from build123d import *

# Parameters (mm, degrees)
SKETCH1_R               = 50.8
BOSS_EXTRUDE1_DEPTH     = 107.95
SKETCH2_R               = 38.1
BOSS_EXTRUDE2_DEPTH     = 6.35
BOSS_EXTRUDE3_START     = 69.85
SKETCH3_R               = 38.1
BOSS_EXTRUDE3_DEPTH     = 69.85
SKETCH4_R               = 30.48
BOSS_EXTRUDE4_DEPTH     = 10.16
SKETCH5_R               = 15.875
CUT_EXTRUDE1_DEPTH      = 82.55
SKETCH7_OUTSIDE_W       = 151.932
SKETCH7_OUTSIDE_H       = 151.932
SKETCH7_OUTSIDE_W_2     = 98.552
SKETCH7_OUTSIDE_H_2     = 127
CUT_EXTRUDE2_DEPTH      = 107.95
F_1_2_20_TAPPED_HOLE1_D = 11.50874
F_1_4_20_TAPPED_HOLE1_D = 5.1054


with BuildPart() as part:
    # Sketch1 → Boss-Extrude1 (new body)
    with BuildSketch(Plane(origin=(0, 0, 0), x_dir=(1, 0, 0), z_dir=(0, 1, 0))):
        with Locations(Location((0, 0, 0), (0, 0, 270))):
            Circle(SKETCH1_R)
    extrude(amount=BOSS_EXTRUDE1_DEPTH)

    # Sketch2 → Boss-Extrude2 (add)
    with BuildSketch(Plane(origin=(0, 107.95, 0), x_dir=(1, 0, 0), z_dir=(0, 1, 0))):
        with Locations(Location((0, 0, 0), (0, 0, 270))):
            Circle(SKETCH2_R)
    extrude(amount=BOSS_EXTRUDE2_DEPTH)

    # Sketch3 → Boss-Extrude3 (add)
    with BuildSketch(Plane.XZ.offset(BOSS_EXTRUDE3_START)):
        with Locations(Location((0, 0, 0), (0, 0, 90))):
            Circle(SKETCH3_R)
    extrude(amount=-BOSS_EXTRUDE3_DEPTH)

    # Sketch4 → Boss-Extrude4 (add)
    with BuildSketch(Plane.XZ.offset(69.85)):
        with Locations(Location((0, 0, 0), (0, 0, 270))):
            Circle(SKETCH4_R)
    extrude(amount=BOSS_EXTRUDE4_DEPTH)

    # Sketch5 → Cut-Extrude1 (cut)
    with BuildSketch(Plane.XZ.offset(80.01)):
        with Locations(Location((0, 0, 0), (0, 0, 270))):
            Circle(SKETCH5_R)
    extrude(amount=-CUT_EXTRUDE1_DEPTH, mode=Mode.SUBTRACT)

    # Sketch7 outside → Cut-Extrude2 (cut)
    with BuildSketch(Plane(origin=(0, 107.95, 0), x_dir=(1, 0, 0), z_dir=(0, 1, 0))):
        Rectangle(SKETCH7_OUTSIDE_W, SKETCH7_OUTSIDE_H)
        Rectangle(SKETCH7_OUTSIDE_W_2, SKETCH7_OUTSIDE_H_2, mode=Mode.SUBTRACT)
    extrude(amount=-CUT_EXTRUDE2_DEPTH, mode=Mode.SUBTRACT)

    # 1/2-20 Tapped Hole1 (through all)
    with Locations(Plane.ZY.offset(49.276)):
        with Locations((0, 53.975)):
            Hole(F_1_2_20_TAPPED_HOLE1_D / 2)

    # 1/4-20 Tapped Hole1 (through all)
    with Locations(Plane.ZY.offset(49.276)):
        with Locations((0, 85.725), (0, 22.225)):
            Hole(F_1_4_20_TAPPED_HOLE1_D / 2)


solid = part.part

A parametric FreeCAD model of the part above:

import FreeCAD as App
import Part
import Sketcher
from FreeCAD import Vector
Q = App.Units.Quantity


def add_polygon(sketch, points):
    """Adds a closed chain of lines whose ends are joined by coincident constraints."""
    first, n = sketch.GeometryCount, len(points)
    for a, b in zip(points, points[1:] + points[:1]):
        sketch.addGeometry(Part.LineSegment(App.Vector(*a, 0), App.Vector(*b, 0)), False)
    for i in range(n):
        sketch.addConstraint(Sketcher.Constraint("Coincident", first + i, 2, first + (i + 1) % n, 1))

doc = App.newDocument("Part")
body = doc.addObject("PartDesign::Body", "Body")

# Sketch on XZ plane
sketch1 = body.newObject("Sketcher::SketchObject", "Sketch")
sketch1.AttachmentSupport = (doc.getObject("XZ_Plane"), [""])
sketch1.MapMode = "FlatFace"
sketch1.addGeometry(Part.Circle(Vector(0, 0, 0), Vector(0, 0, 1), 51), False)
sketch1.addConstraint([
    Sketcher.Constraint("Coincident", 0, 3, -1, 1),
    Sketcher.Constraint("Diameter", 0, Q("4 in")),
])
pad1 = body.newObject("PartDesign::Pad", "Pad")
pad1.Profile = sketch1
pad1.Length = Q("4.25 in")
pad1.Reversed = True

# Sketch on XZ plane
sketch2 = body.newObject("Sketcher::SketchObject", "Sketch001")
sketch2.AttachmentSupport = (doc.getObject("XZ_Plane"), [""])
sketch2.MapMode = "FlatFace"
sketch2.AttachmentOffset = App.Placement(Vector(0, 0, -4.25 * 25.4), App.Rotation())
sketch2.addGeometry(Part.Circle(Vector(0, 0, 0), Vector(0, 0, 1), 38), False)
sketch2.addConstraint([
    Sketcher.Constraint("Coincident", 0, 3, -1, 1),
    Sketcher.Constraint("Diameter", 0, Q("3 in")),
])
pad2 = body.newObject("PartDesign::Pad", "Pad001")
pad2.Profile = sketch2
pad2.Length = Q("0.25 in")
pad2.Reversed = True

# Sketch on XZ plane
sketch3 = body.newObject("Sketcher::SketchObject", "Sketch002")
sketch3.AttachmentSupport = (doc.getObject("XZ_Plane"), [""])
sketch3.MapMode = "FlatFace"
sketch3.AttachmentOffset = App.Placement(Vector(0, 0, 2.75 * 25.4), App.Rotation())
sketch3.addGeometry(Part.Circle(Vector(0, 0, 0), Vector(0, 0, 1), 38), False)
sketch3.addConstraint([
    Sketcher.Constraint("Coincident", 0, 3, -1, 1),
    Sketcher.Constraint("Diameter", 0, Q("3 in")),
])
pad3 = body.newObject("PartDesign::Pad", "Pad002")
pad3.Profile = sketch3
pad3.Length = Q("2.75 in")
pad3.Reversed = True

# Sketch on XZ plane
sketch4 = body.newObject("Sketcher::SketchObject", "Sketch003")
sketch4.AttachmentSupport = (doc.getObject("XZ_Plane"), [""])
sketch4.MapMode = "FlatFace"
sketch4.AttachmentOffset = App.Placement(Vector(0, 0, 2.75 * 25.4), App.Rotation())
sketch4.addGeometry(Part.Circle(Vector(0, 0, 0), Vector(0, 0, 1), 30), False)
sketch4.addConstraint([
    Sketcher.Constraint("Coincident", 0, 3, -1, 1),
    Sketcher.Constraint("Diameter", 0, Q("2.4 in")),
])
pad4 = body.newObject("PartDesign::Pad", "Pad003")
pad4.Profile = sketch4
pad4.Length = Q("0.4 in")

# Sketch on XZ plane
sketch5 = body.newObject("Sketcher::SketchObject", "Sketch004")
sketch5.AttachmentSupport = (doc.getObject("XZ_Plane"), [""])
sketch5.MapMode = "FlatFace"
sketch5.AttachmentOffset = App.Placement(Vector(0, 0, 3.15 * 25.4), App.Rotation())
sketch5.addGeometry(Part.Circle(Vector(0, 0, 0), Vector(0, 0, 1), 16), False)
sketch5.addConstraint([
    Sketcher.Constraint("Coincident", 0, 3, -1, 1),
    Sketcher.Constraint("Diameter", 0, Q("1.25 in")),
])
pocket1 = body.newObject("PartDesign::Pocket", "Pocket")
pocket1.Profile = sketch5
pocket1.Length = Q("3.25 in")

# Sketch on XZ plane
sketch6 = body.newObject("Sketcher::SketchObject", "Sketch005")
sketch6.AttachmentSupport = (doc.getObject("XZ_Plane"), [""])
sketch6.MapMode = "FlatFace"
sketch6.AttachmentOffset = App.Placement(Vector(0, 0, -4.25 * 25.4), App.Rotation())
add_polygon(sketch6, [(-76, -76), (-76, 76), (76, 76), (76, -76)])  # lines 0-3
add_polygon(sketch6, [(49, 64), (-49, 64), (-49, -64), (49, -64)])  # lines 4-7
sketch6.addConstraint([
    Sketcher.Constraint("Vertical", 0),
    Sketcher.Constraint("Horizontal", 1),
    Sketcher.Constraint("Vertical", 2),
    Sketcher.Constraint("Horizontal", 3),
    Sketcher.Constraint("Horizontal", 4),
    Sketcher.Constraint("Vertical", 5),
    Sketcher.Constraint("Horizontal", 6),
    Sketcher.Constraint("Vertical", 7),
    Sketcher.Constraint("Symmetric", 0, 2, 2, 2, -1, 1),
    Sketcher.Constraint("Symmetric", 4, 2, 6, 2, -1, 1),
    Sketcher.Constraint("Equal", 3, 0),
    Sketcher.Constraint("DistanceY", 5, 2, 5, 1, Q("5 in")),
    Sketcher.Constraint("DistanceX", 4, 2, 4, 1, Q("3.88 in")),
    Sketcher.Constraint("DistanceX", 1, 1, 1, 2, Q("151.932 mm")),
])
pocket2 = body.newObject("PartDesign::Pocket", "Pocket001")
pocket2.Profile = sketch6
pocket2.Length = Q("4.25 in")
pocket2.Reversed = True

# Sketch on YZ plane
sketch7 = body.newObject("Sketcher::SketchObject", "Sketch006")
sketch7.AttachmentSupport = (doc.getObject("YZ_Plane"), [""])
sketch7.MapMode = "FlatFace"
sketch7.AttachmentOffset = App.Placement(Vector(0, 0, -1.94 * 25.4), App.Rotation())
sketch7.addGeometry(Part.Circle(Vector(54, 0, 0), Vector(0, 0, 1), 6), False)
sketch7.addConstraint([
    Sketcher.Constraint("PointOnObject", 0, 3, -1),
    Sketcher.Constraint("Diameter", 0, Q("0.4531 in")),
    Sketcher.Constraint("DistanceX", -1, 1, 0, 3, Q("2.125 in")),
])
doc.recompute()
hole = body.newObject("PartDesign::Hole", "Hole")
hole.Profile = sketch7
hole.ThreadType = "None"
hole.Diameter = Q("0.4531 in")
hole.DepthType = "ThroughAll"
hole.Reversed = True

# Sketch on YZ plane
sketch8 = body.newObject("Sketcher::SketchObject", "Sketch007")
sketch8.AttachmentSupport = (doc.getObject("YZ_Plane"), [""])
sketch8.MapMode = "FlatFace"
sketch8.AttachmentOffset = App.Placement(Vector(0, 0, -1.94 * 25.4), App.Rotation())
sketch8.addGeometry([
    Part.Circle(Vector(85.7, 0, 0), Vector(0, 0, 1), 2.6),
    Part.Circle(Vector(22.2, 0, 0), Vector(0, 0, 1), 2.6),
], False)
sketch8.addConstraint([
    Sketcher.Constraint("Equal", 0, 1),
    Sketcher.Constraint("PointOnObject", 0, 3, -1),
    Sketcher.Constraint("PointOnObject", 1, 3, -1),
    Sketcher.Constraint("Diameter", 0, Q("0.201 in")),
    Sketcher.Constraint("DistanceX", 1, 3, 0, 3, Q("2.5 in")),
    Sketcher.Constraint("DistanceX", -1, 1, 0, 3, Q("3.375 in")),
])
doc.recompute()
hole2 = body.newObject("PartDesign::Hole", "Hole001")
hole2.Profile = sketch8
hole2.ThreadType = "None"
hole2.Diameter = Q("0.201 in")
hole2.DepthType = "ThroughAll"
hole2.Reversed = True

doc.recompute()
